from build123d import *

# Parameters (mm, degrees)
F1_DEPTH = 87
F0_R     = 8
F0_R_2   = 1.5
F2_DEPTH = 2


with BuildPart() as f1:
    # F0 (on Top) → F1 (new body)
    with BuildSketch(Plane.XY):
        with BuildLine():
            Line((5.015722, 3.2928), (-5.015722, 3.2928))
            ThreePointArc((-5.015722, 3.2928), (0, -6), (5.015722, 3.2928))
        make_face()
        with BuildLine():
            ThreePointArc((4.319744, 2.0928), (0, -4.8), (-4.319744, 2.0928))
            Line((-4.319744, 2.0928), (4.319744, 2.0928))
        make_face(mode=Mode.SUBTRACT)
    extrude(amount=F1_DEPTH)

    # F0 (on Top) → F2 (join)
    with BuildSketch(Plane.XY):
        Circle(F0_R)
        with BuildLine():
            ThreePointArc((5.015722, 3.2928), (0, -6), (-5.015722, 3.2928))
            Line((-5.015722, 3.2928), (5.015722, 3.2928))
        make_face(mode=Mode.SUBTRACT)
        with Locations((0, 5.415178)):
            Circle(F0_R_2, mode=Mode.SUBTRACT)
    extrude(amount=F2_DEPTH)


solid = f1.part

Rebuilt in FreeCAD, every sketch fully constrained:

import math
import FreeCAD as App
import Part
import Sketcher

V = App.Vector

doc = App.newDocument("Part")
params = doc.addObject("Spreadsheet::Sheet", "Params")
for row, (alias, value) in enumerate([
    ("sketch1_radius", "6 mm"),
    ("sketch1_radius2", "4.8 mm"),
    ("pad1_length", "87 mm"),
    ("sketch2_diameter", "16 mm"),
    ("sketch2_diameter2", "3 mm"),
    ("sketch2_radius", "6 mm"),
    ("pad2_length", "2 mm"),
], start=1):
    params.set(f"A{row}", alias)
    params.set(f"B{row}", "=" + value)
    params.setAlias(f"B{row}", alias)

body = doc.addObject("PartDesign::Body", "Body")

# Sketch on XY plane
sketch1 = body.newObject("Sketcher::SketchObject", "Sketch")
sketch1.AttachmentSupport = (doc.getObject("XY_Plane"), [""])
sketch1.MapMode = "FlatFace"
sketch1.addGeometry(Part.LineSegment(V(5.015722, 3.2928, 0), V(-5.015722, 3.2928, 0)), False)
sketch1.addGeometry(Part.ArcOfCircle(Part.Circle(V(0, 0, 0), V(0, 0, 1), 6), math.radians(146.715272), math.radians(393.284728)), False)
sketch1.addGeometry(Part.LineSegment(V(-4.319744, 2.0928, 0), V(4.319744, 2.0928, 0)), False)
sketch1.addGeometry(Part.ArcOfCircle(Part.Circle(V(0, 0, 0), V(0, 0, 1), 4.8), math.radians(154.151058), math.radians(385.848942)), False)
sketch1.addConstraint(Sketcher.Constraint("Coincident", 0, 1, 1, 2))
sketch1.addConstraint(Sketcher.Constraint("Coincident", 1, 1, 0, 2))
sketch1.addConstraint(Sketcher.Constraint("Coincident", 2, 1, 3, 1))
sketch1.addConstraint(Sketcher.Constraint("Coincident", 3, 2, 2, 2))
sketch1.addConstraint(Sketcher.Constraint("Horizontal", 0))
sketch1.addConstraint(Sketcher.Constraint("Horizontal", 2))
sketch1.addConstraint(Sketcher.Constraint("Coincident", 1, 3, -1, 1))
sketch1.addConstraint(Sketcher.Constraint("Coincident", 3, 3, -1, 1))
sketch1.addConstraint(Sketcher.Constraint("Radius", 1, 6.0))
sketch1.addConstraint(Sketcher.Constraint("Radius", 3, 4.8))
sketch1.addConstraint(Sketcher.Constraint("DistanceY", 2, 1, 1, 1, 1.2))
sketch1.addConstraint(Sketcher.Constraint("DistanceY", -1, 1, 0, 1, 3.2928))
sketch1.setExpression("Constraints[8]", "Params.sketch1_radius")
sketch1.setExpression("Constraints[9]", "Params.sketch1_radius2")
pad1 = body.newObject("PartDesign::Pad", "Pad")
pad1.Profile = sketch1
pad1.setExpression("Length", "Params.pad1_length")

# Sketch on XY plane
sketch2 = body.newObject("Sketcher::SketchObject", "Sketch001")
sketch2.AttachmentSupport = (doc.getObject("XY_Plane"), [""])
sketch2.MapMode = "FlatFace"
sketch2.addGeometry(Part.Circle(V(0, 0, 0), V(0, 0, 1), 8), False)
sketch2.addGeometry(Part.LineSegment(V(-5.015722, 3.2928, 0), V(5.015722, 3.2928, 0)), False)
sketch2.addGeometry(Part.ArcOfCircle(Part.Circle(V(0, 0, 0), V(0, 0, 1), 6), math.radians(146.715272), math.radians(393.284728)), False)
sketch2.addGeometry(Part.Circle(V(0, 5.415178, 0), V(0, 0, 1), 1.5), False)
sketch2.addConstraint(Sketcher.Constraint("Coincident", 1, 1, 2, 1))
sketch2.addConstraint(Sketcher.Constraint("Coincident", 2, 2, 1, 2))
sketch2.addConstraint(Sketcher.Constraint("Horizontal", 1))
sketch2.addConstraint(Sketcher.Constraint("Coincident", 0, 3, -1, 1))
sketch2.addConstraint(Sketcher.Constraint("Coincident", 2, 3, -1, 1))
sketch2.addConstraint(Sketcher.Constraint("PointOnObject", 3, 3, -2))
sketch2.addConstraint(Sketcher.Constraint("Diameter", 0, 16.0))
sketch2.addConstraint(Sketcher.Constraint("Diameter", 3, 3.0))
sketch2.addConstraint(Sketcher.Constraint("Radius", 2, 6.0))
sketch2.addConstraint(Sketcher.Constraint("DistanceY", -1, 1, 1, 1, 3.2928))
sketch2.addConstraint(Sketcher.Constraint("DistanceY", 2, 3, 3, 3, 5.415178))
sketch2.setExpression("Constraints[6]", "Params.sketch2_diameter")
sketch2.setExpression("Constraints[7]", "Params.sketch2_diameter2")
sketch2.setExpression("Constraints[8]", "Params.sketch2_radius")
pad2 = body.newObject("PartDesign::Pad", "Pad001")
pad2.Profile = sketch2
pad2.setExpression("Length", "Params.pad2_length")

doc.recompute()
